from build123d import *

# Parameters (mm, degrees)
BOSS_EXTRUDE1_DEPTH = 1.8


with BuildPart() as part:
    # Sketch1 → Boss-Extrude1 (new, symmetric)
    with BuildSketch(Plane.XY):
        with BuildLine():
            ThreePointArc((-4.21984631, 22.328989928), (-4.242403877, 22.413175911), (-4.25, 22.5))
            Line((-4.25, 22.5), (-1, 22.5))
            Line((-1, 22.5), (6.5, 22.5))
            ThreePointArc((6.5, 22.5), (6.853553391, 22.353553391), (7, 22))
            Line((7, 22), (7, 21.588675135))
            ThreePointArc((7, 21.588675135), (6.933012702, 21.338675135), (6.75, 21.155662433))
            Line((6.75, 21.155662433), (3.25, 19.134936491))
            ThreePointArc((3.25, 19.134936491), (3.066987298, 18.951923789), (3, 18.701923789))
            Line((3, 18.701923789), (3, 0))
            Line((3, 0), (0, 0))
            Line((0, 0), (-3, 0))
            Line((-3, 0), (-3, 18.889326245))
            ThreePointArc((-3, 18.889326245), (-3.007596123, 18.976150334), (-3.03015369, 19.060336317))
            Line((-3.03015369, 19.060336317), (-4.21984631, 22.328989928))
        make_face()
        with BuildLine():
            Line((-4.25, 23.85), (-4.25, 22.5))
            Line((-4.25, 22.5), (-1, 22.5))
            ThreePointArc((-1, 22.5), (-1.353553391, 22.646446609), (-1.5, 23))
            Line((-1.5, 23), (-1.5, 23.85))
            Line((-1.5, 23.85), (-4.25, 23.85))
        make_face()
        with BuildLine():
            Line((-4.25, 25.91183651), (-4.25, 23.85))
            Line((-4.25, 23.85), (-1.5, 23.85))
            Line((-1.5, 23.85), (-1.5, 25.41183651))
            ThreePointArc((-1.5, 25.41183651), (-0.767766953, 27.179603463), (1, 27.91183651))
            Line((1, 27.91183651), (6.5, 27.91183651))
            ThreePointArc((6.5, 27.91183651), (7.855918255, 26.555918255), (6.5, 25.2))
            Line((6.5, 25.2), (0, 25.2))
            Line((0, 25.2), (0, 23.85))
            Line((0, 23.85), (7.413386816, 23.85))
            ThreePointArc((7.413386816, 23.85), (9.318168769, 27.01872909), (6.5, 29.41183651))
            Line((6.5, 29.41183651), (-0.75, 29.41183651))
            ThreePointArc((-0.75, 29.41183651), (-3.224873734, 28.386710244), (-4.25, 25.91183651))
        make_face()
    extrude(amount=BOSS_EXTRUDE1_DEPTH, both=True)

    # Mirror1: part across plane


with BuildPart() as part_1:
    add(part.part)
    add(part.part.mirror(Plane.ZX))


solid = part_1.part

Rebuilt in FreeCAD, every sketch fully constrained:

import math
import FreeCAD as App
import Part
import Sketcher

V = App.Vector
Q = App.Units.Quantity

doc = App.newDocument("Part")
params = doc.addObject("Spreadsheet::Sheet", "Params")
for row, (alias, value) in enumerate([
    ("sketch1_radius", "0.5 mm"),
    ("sketch1_radius2", "2.5 mm"),
    ("sketch1_radius3", "3.5 mm"),
    ("sketch1_width", "6 mm"),
    ("sketch1_width2", "7.5 mm"),
    ("pad1_length", "3.6 mm"),
], start=1):
    params.set(f"A{row}", alias)
    params.set(f"B{row}", "=" + value)
    params.setAlias(f"B{row}", alias)

body = doc.addObject("PartDesign::Body", "Body")

sketch1 = body.newObject("Sketcher::SketchObject", "Sketch")
sketch1.AttachmentSupport = (doc.getObject("XY_Plane"), [""])
sketch1.MapMode = "FlatFace"
sketch1.addGeometry([
    Part.ArcOfCircle(Part.Circle(V(-3.75, 22.5, 0), V(0, 0, 1), 0.5), math.radians(179.999999), math.radians(200.000001)),
    Part.LineSegment(V(-4.219846, 22.32899, 0), V(-3.030154, 19.060336, 0)),
    Part.ArcOfCircle(Part.Circle(V(-3.5, 18.889326, 0), V(0, 0, 1), 0.5), math.radians(-0.000001), math.radians(20.000001)),
    Part.LineSegment(V(-3, 18.889326, 0), V(-3, 0, 0)),
    Part.LineSegment(V(-3, 0, 0), V(3, 0, 0)),
    Part.LineSegment(V(3, 0, 0), V(3, 18.701924, 0)),
    Part.ArcOfCircle(Part.Circle(V(3.5, 18.701924, 0), V(0, 0, 1), 0.5), math.radians(120), math.radians(180)),
    Part.LineSegment(V(3.25, 19.134936, 0), V(6.75, 21.155662, 0)),
    Part.ArcOfCircle(Part.Circle(V(6.5, 21.588675, 0), V(0, 0, 1), 0.5), math.radians(-60), math.radians(0)),
    Part.LineSegment(V(7, 21.588675, 0), V(7, 22, 0)),
    Part.ArcOfCircle(Part.Circle(V(6.5, 22, 0), V(0, 0, 1), 0.5), math.radians(0), math.radians(90)),
    Part.LineSegment(V(6.5, 22.5, 0), V(-1, 22.5, 0)),
    Part.ArcOfCircle(Part.Circle(V(-1, 23, 0), V(0, 0, 1), 0.5), math.radians(180), math.radians(270)),
    Part.LineSegment(V(-1.5, 23, 0), V(-1.5, 25.411837, 0)),
    Part.ArcOfCircle(Part.Circle(V(1, 25.411837, 0), V(0, 0, 1), 2.5), math.radians(90), math.radians(180)),
    Part.LineSegment(V(1, 27.911837, 0), V(6.5, 27.911837, 0)),
    Part.ArcOfCircle(Part.Circle(V(6.5, 26.555918, 0), V(0, 0, 1), 1.355918), math.radians(-90), math.radians(90)),
    Part.LineSegment(V(6.5, 25.2, 0), V(0, 25.2, 0)),
    Part.LineSegment(V(0, 25.2, 0), V(0, 23.85, 0)),
    Part.LineSegment(V(0, 23.85, 0), V(7.413387, 23.85, 0)),
    Part.ArcOfCircle(Part.Circle(V(6.5, 26.555918, 0), V(0, 0, 1), 2.855918), math.radians(-71.347811), math.radians(90)),
    Part.LineSegment(V(6.5, 29.411837, 0), V(-0.75, 29.411837, 0)),
    Part.ArcOfCircle(Part.Circle(V(-0.75, 25.911837, 0), V(0, 0, 1), 3.5), math.radians(90), math.radians(180)),
    Part.LineSegment(V(-4.25, 25.911837, 0), V(-4.25, 22.5, 0)),
], False)
sketch1.addConstraint([
    Sketcher.Constraint("Tangent", 0, 2, 1, 1),
    Sketcher.Constraint("Tangent", 1, 2, 2, 2),
    Sketcher.Constraint("Tangent", 2, 1, 3, 1),
    Sketcher.Constraint("Coincident", 3, 2, 4, 1),
    Sketcher.Constraint("Coincident", 4, 2, 5, 1),
    Sketcher.Constraint("Tangent", 5, 2, 6, 2),
    Sketcher.Constraint("Tangent", 6, 1, 7, 1),
    Sketcher.Constraint("Tangent", 7, 2, 8, 1),
    Sketcher.Constraint("Tangent", 8, 2, 9, 1),
    Sketcher.Constraint("Tangent", 9, 2, 10, 1),
    Sketcher.Constraint("Tangent", 10, 2, 11, 1),
    Sketcher.Constraint("Tangent", 11, 2, 12, 2),
    Sketcher.Constraint("Tangent", 12, 1, 13, 1),
    Sketcher.Constraint("Tangent", 13, 2, 14, 2),
    Sketcher.Constraint("Tangent", 14, 1, 15, 1),
    Sketcher.Constraint("Tangent", 15, 2, 16, 2),
    Sketcher.Constraint("Tangent", 16, 1, 17, 1),
    Sketcher.Constraint("Coincident", 17, 2, 18, 1),
    Sketcher.Constraint("Coincident", 18, 2, 19, 1),
    Sketcher.Constraint("Coincident", 19, 2, 20, 1),
    Sketcher.Constraint("Tangent", 20, 2, 21, 1),
    Sketcher.Constraint("Tangent", 21, 2, 22, 1),
    Sketcher.Constraint("Tangent", 22, 2, 23, 1),
    Sketcher.Constraint("Tangent", 23, 2, 0, 1),
    Sketcher.Constraint("Vertical", 3),
    Sketcher.Constraint("Horizontal", 4),
    Sketcher.Constraint("Vertical", 5),
    Sketcher.Constraint("Vertical", 9),
    Sketcher.Constraint("Horizontal", 11),
    Sketcher.Constraint("Vertical", 13),
    Sketcher.Constraint("Horizontal", 15),
    Sketcher.Constraint("Horizontal", 17),
    Sketcher.Constraint("Vertical", 18),
    Sketcher.Constraint("Horizontal", 19),
    Sketcher.Constraint("Horizontal", 21),
    Sketcher.Constraint("Vertical", 23),
    Sketcher.Constraint("Coincident", 20, 3, 16, 3),
    Sketcher.Constraint("Equal", 0, 2),
    Sketcher.Constraint("Equal", 2, 6),
    Sketcher.Constraint("Equal", 6, 8),
    Sketcher.Constraint("Equal", 8, 10),
    Sketcher.Constraint("Equal", 10, 12),
    Sketcher.Constraint("Symmetric", 3, 2, 4, 2, -1, 1),
    Sketcher.Constraint("PointOnObject", 17, 2, -2),
    Sketcher.Constraint("Horizontal", 0, 3, 10, 2),
    Sketcher.Constraint("Vertical", 10, 3, 16, 3),
    Sketcher.Constraint("Radius", 0, 0.5),
    Sketcher.Constraint("Radius", 14, 2.5),
    Sketcher.Constraint("Radius", 22, 3.5),
    Sketcher.Constraint("DistanceX", 4, 1, 4, 2, 6.0),
    Sketcher.Constraint("Angle", 1, Q("-70 deg")),
    Sketcher.Constraint("Angle", 7, Q("30 deg")),
    Sketcher.Constraint("DistanceX", 11, 2, 11, 1, 7.5),
    Sketcher.Constraint("DistanceX", 17, 2, 17, 1, 6.5),
    Sketcher.Constraint("DistanceY", -1, 1, 10, 3, 22.0),
    Sketcher.Constraint("DistanceY", 22, 3, 14, 1, 2.0),
    Sketcher.Constraint("DistanceX", 21, 2, 21, 1, 7.25),
    Sketcher.Constraint("DistanceY", 18, 2, 18, 1, 1.35),
    Sketcher.Constraint("DistanceY", -1, 1, 16, 1, 25.2),
    Sketcher.Constraint("Radius", 16, 1.355918),
    Sketcher.Constraint("DistanceY", 5, 1, 5, 2, 18.701924),
])
sketch1.setExpression("Constraints[46]", "Params.sketch1_radius")
sketch1.setExpression("Constraints[47]", "Params.sketch1_radius2")
sketch1.setExpression("Constraints[48]", "Params.sketch1_radius3")
sketch1.setExpression("Constraints[49]", "Params.sketch1_width")
sketch1.setExpression("Constraints[52]", "Params.sketch1_width2")
pad1 = body.newObject("PartDesign::Pad", "Pad")
pad1.Profile = sketch1
pad1.setExpression("Length", "Params.pad1_length")
pad1.Midplane = True
body2 = doc.addObject("PartDesign::Body", "Body001")
doc.recompute()

body2.BaseFeature = body
doc.recompute()

mirroring = doc.addObject("Part::Mirroring", "Mirroring")
mirroring.Source = body
mirroring.Base = V(0, 0, 0)
mirroring.Normal = V(0, 1, 0)
body3 = doc.addObject("PartDesign::Body", "Body002")
body3.BaseFeature = mirroring
boolean = body2.newObject("PartDesign::Boolean", "Boolean")
boolean.Type = "Fuse"
boolean.addObjects([body3])
doc.recompute()
mirroring.Visibility = False

doc.recompute()
